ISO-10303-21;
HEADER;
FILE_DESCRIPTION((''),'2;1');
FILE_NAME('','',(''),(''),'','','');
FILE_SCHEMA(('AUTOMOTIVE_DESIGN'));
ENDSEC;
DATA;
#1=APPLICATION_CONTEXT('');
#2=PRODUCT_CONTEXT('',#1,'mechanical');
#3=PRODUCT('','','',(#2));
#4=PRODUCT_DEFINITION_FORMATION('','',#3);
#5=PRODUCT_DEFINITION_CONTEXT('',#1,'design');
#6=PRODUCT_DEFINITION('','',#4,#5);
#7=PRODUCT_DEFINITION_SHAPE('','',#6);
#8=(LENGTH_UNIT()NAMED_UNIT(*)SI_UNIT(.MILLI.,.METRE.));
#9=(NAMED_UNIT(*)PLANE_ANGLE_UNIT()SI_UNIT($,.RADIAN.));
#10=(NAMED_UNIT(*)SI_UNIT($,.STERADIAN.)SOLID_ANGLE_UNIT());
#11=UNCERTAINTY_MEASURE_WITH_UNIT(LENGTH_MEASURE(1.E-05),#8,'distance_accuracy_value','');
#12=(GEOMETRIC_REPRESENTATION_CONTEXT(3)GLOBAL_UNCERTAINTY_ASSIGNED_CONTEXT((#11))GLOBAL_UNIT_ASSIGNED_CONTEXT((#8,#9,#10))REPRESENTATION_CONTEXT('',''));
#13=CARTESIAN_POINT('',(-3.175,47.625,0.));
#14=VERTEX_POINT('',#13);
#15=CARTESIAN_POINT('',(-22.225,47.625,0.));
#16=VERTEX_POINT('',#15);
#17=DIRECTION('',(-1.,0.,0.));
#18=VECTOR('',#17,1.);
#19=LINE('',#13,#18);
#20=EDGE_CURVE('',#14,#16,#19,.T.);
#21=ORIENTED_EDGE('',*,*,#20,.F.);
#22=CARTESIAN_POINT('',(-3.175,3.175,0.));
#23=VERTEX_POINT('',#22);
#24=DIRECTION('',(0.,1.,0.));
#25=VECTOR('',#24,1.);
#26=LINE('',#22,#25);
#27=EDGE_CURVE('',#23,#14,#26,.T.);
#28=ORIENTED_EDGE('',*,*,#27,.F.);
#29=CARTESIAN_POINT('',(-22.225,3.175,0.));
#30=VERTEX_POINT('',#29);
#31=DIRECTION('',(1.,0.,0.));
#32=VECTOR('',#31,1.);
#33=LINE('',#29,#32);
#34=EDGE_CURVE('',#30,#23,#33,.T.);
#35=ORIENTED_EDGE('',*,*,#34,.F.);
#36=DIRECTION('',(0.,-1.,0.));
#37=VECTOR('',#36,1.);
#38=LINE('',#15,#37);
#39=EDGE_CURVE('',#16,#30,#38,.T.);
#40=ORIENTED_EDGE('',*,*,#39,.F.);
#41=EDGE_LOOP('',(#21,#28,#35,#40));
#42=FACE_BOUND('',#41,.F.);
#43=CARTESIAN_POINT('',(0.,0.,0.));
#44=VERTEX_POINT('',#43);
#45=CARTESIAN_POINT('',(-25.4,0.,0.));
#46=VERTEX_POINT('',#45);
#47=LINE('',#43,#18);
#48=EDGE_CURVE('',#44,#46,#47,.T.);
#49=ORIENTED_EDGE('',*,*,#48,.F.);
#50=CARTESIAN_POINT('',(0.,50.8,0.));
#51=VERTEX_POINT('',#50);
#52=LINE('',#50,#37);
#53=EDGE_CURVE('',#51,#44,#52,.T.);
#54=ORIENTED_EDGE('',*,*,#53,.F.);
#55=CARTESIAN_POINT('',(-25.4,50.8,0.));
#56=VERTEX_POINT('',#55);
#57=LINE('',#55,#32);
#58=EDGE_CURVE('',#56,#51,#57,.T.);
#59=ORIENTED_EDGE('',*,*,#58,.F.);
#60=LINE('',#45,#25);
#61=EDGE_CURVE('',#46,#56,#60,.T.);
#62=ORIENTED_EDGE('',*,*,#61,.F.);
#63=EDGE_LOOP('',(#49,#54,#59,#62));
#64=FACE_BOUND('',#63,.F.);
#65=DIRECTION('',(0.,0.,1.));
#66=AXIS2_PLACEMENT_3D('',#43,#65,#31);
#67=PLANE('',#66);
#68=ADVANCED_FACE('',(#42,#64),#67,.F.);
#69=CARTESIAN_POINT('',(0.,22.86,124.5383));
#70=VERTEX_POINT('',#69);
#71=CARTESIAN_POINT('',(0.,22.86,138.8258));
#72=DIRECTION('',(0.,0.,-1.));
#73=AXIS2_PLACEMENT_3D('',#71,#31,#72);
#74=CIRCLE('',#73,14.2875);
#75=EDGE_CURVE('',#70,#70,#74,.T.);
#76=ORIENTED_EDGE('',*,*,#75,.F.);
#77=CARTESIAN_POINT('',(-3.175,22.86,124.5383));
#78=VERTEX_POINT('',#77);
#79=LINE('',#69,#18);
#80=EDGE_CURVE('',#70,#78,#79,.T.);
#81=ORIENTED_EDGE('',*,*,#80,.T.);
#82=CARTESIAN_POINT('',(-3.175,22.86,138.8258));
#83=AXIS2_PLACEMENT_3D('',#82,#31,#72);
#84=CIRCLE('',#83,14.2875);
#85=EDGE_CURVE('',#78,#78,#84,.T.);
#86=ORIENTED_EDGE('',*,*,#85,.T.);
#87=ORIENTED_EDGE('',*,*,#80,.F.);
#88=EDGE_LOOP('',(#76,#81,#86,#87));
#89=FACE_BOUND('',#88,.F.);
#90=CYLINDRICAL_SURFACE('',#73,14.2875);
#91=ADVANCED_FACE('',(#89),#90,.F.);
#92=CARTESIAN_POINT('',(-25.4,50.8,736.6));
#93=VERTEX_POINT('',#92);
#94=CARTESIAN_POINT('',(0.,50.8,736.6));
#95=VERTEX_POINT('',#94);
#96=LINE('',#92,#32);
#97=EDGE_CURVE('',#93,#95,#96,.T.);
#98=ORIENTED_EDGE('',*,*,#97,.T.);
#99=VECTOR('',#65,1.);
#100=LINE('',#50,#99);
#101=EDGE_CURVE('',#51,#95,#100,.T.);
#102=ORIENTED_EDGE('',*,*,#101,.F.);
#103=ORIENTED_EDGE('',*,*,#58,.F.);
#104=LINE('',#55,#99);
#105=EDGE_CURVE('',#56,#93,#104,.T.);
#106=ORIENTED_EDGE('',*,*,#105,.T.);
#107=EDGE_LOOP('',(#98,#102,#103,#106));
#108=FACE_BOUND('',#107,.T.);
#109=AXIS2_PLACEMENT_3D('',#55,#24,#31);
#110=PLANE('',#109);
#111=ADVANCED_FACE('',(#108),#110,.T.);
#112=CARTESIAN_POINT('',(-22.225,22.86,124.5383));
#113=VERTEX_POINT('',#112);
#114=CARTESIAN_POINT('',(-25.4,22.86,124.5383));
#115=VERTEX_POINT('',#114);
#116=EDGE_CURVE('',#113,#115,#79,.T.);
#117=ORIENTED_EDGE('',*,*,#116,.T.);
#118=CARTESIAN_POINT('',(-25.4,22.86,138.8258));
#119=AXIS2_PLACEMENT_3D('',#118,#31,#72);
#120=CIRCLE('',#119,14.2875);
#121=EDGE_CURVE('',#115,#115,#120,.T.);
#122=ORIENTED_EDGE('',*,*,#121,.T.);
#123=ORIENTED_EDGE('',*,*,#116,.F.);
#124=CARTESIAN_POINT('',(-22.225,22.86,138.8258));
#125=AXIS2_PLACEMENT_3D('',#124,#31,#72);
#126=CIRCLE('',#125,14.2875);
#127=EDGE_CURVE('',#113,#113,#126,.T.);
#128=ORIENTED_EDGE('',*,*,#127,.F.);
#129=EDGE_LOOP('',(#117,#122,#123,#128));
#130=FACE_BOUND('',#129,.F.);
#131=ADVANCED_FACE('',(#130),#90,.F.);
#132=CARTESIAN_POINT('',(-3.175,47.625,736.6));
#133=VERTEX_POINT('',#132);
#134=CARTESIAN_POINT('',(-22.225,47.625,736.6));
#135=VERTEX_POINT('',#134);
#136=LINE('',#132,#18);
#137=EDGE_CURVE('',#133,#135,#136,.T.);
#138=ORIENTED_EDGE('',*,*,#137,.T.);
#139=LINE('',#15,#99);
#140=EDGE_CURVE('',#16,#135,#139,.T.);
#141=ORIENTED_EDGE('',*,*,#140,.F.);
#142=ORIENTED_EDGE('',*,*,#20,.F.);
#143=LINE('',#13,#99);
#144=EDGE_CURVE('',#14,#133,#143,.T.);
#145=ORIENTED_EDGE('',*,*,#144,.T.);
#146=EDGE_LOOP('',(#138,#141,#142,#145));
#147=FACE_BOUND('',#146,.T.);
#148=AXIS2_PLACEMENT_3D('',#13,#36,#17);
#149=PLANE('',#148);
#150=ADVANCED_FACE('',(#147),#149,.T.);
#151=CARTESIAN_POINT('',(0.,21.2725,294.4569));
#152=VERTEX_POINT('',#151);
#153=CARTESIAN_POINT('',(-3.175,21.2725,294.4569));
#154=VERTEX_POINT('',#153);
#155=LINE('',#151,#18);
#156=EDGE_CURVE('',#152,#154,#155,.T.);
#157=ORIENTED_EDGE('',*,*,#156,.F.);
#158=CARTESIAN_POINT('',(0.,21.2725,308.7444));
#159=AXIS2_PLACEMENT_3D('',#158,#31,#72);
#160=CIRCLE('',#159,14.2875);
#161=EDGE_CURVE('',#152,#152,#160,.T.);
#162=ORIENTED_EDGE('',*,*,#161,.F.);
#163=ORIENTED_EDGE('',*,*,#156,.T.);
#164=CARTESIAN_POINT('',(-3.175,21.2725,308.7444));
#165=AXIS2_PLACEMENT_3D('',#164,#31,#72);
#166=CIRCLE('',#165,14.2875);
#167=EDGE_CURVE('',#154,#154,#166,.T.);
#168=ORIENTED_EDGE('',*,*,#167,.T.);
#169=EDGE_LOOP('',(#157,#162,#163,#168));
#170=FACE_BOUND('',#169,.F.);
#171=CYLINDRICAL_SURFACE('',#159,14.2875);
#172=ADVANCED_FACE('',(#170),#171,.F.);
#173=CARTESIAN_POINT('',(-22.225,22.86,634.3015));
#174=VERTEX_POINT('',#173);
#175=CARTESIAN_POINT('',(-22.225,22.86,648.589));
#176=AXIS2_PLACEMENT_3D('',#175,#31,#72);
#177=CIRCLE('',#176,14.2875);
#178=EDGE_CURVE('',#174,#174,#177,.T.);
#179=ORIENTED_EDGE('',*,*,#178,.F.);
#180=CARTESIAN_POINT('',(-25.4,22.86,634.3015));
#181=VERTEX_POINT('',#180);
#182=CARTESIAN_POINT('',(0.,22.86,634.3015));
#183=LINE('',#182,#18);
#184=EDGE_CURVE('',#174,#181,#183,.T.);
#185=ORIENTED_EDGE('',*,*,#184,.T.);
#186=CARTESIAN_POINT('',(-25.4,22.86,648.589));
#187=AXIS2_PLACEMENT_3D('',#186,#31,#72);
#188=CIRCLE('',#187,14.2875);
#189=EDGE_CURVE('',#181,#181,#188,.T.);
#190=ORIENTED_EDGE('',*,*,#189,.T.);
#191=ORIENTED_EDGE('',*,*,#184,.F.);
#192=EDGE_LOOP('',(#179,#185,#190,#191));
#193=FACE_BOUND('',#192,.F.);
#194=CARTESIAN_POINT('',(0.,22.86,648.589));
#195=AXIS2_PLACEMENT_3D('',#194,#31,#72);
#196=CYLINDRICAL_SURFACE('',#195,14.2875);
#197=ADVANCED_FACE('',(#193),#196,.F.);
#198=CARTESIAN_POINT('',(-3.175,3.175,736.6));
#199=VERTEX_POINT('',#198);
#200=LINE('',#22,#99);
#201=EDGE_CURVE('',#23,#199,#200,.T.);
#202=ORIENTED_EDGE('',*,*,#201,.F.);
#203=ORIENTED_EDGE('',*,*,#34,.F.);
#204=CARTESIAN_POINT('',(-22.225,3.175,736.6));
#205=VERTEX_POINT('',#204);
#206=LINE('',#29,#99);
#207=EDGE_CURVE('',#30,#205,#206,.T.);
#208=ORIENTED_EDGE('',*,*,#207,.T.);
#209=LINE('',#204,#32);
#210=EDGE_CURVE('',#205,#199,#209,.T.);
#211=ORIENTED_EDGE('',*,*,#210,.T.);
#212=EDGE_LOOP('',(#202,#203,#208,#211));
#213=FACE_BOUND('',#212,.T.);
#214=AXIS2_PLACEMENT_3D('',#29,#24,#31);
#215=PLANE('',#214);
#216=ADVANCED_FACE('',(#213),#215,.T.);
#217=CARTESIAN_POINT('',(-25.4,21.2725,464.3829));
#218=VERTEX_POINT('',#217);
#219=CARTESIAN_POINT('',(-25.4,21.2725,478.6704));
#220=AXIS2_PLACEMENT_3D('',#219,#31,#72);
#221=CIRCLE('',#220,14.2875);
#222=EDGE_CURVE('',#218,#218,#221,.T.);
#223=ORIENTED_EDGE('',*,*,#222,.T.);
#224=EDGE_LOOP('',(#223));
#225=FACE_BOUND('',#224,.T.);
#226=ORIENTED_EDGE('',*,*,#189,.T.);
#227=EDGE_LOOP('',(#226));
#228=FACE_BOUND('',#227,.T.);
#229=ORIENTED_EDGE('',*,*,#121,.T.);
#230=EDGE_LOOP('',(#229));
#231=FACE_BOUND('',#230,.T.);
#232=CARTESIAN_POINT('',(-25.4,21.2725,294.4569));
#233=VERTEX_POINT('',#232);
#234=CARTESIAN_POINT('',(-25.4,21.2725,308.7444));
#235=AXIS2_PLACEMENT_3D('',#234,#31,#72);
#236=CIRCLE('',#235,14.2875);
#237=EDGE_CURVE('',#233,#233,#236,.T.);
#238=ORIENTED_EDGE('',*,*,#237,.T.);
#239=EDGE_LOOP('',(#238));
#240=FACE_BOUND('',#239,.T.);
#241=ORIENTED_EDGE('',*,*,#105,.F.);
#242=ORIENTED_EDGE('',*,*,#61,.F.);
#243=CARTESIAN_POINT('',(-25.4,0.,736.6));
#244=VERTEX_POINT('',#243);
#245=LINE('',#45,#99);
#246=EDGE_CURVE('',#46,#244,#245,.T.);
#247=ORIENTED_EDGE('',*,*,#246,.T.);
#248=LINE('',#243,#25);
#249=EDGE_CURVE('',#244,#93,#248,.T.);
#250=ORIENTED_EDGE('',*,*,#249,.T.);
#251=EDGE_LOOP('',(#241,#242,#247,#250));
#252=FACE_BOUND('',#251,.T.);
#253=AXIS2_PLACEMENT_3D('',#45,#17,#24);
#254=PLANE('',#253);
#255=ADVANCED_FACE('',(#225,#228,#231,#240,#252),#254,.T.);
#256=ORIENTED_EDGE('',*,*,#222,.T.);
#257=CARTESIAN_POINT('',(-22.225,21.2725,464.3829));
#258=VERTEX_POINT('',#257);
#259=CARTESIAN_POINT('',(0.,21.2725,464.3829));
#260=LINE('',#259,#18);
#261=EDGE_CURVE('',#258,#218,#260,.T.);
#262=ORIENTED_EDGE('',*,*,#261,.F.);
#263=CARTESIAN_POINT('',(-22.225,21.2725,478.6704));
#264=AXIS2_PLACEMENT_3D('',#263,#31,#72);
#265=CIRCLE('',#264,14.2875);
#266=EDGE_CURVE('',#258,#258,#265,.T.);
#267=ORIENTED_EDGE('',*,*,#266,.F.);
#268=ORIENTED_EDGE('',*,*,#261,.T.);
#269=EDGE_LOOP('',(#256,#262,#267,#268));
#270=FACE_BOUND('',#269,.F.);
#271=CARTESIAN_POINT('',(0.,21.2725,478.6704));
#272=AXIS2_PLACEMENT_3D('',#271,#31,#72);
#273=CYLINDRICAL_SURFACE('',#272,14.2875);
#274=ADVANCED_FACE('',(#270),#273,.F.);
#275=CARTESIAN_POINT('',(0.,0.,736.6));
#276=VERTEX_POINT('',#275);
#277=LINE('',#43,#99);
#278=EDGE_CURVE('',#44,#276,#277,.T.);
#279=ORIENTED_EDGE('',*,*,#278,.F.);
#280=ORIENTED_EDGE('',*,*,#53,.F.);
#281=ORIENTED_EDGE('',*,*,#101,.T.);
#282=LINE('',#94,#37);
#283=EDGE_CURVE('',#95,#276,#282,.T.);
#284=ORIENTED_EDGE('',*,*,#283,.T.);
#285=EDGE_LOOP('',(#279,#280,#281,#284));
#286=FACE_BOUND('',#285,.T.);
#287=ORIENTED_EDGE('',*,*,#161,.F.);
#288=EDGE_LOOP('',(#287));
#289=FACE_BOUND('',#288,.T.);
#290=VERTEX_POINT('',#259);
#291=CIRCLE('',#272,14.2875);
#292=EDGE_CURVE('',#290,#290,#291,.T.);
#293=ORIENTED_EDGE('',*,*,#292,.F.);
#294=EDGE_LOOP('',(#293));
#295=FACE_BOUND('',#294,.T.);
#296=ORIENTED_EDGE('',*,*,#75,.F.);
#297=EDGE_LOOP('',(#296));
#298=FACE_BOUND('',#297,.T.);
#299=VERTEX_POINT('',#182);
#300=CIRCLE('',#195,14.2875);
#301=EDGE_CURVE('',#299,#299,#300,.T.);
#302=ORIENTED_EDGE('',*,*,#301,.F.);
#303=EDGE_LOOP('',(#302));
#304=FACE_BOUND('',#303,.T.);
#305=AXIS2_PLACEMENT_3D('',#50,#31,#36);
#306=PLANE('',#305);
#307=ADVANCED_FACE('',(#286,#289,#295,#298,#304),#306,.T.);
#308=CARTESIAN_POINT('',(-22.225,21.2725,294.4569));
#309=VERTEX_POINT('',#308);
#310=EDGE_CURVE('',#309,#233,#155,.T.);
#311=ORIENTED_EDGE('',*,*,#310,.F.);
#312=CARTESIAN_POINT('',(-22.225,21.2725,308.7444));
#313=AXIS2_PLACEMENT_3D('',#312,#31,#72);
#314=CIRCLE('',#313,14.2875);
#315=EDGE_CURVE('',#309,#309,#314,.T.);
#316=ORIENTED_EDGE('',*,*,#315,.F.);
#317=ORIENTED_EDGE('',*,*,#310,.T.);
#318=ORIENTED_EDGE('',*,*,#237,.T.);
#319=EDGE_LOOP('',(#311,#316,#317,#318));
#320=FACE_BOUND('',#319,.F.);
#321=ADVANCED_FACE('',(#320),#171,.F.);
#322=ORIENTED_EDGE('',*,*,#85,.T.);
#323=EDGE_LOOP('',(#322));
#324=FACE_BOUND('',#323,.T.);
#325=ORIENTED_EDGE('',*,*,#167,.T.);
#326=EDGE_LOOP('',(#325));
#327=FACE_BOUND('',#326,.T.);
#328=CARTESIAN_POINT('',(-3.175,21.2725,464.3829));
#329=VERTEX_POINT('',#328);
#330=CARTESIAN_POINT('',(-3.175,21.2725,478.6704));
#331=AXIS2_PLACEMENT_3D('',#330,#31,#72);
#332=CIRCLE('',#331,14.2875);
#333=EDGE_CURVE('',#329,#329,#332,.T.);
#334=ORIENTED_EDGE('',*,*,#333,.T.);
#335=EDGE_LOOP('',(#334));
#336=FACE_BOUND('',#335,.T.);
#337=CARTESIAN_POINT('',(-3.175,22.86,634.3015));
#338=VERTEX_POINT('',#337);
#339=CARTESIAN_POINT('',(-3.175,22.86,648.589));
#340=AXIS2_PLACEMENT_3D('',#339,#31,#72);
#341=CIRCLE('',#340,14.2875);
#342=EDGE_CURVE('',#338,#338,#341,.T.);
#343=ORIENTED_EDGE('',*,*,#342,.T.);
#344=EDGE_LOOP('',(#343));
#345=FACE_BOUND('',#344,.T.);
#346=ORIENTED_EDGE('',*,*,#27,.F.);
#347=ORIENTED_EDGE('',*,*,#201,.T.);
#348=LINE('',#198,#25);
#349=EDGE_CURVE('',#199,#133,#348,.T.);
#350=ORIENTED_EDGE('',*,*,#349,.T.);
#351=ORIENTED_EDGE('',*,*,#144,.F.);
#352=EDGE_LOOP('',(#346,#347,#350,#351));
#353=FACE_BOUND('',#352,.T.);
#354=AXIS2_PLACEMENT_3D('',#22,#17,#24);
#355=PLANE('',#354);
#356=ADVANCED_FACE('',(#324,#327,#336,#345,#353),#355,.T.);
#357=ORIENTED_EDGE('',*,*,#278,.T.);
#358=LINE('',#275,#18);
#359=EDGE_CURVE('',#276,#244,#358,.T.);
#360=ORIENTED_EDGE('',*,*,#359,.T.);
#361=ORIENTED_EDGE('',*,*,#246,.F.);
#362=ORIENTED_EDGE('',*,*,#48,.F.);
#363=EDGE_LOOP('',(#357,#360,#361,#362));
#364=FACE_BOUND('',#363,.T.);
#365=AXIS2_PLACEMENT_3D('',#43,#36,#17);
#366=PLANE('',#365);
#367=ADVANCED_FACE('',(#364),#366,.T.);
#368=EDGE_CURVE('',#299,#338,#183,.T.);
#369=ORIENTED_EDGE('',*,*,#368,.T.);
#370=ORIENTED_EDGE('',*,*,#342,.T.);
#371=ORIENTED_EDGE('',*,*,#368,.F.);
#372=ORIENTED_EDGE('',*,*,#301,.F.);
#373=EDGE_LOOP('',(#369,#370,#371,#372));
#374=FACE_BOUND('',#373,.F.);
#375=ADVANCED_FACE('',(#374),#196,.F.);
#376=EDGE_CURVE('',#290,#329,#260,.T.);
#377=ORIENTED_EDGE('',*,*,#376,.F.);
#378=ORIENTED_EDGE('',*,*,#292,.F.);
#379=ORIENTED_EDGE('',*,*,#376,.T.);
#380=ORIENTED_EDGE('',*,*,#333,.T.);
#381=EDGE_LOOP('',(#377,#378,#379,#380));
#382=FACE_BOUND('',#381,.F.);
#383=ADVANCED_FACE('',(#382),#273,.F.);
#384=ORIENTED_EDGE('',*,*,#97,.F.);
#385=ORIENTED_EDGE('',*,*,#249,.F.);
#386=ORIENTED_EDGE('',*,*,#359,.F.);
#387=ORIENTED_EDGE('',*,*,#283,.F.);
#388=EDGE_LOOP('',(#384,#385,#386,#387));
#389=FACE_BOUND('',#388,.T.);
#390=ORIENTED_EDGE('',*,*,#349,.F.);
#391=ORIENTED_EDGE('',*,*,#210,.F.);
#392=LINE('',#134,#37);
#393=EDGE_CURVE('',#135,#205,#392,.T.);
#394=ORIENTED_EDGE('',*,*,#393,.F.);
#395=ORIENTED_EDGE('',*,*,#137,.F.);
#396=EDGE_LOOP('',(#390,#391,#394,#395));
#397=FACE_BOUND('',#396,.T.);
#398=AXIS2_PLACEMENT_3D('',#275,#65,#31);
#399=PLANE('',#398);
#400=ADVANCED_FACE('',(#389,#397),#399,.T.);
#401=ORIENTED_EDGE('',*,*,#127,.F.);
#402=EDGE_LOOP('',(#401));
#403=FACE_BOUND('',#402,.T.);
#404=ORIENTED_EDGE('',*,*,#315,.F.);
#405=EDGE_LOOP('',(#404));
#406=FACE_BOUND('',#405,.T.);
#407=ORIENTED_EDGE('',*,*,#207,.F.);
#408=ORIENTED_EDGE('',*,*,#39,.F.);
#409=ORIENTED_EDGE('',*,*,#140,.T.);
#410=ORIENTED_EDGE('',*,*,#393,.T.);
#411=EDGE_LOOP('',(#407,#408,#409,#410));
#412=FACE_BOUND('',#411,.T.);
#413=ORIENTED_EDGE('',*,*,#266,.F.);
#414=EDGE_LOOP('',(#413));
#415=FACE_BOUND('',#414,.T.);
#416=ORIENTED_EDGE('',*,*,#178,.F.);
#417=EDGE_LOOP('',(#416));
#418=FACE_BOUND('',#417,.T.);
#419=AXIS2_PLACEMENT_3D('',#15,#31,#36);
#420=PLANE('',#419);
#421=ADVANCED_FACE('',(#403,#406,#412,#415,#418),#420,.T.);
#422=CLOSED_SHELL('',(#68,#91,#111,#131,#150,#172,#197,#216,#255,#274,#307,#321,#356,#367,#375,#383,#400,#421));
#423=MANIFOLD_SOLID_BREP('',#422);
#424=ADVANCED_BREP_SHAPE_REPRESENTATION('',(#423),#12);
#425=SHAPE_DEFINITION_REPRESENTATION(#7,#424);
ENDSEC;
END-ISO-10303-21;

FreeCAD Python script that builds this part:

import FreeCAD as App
import Part
import Sketcher
from FreeCAD import Vector
Q = App.Units.Quantity


def add_polygon(sketch, points):
    """Adds a closed chain of lines whose ends are joined by coincident constraints."""
    first, n = sketch.GeometryCount, len(points)
    for a, b in zip(points, points[1:] + points[:1]):
        sketch.addGeometry(Part.LineSegment(App.Vector(*a, 0), App.Vector(*b, 0)), False)
    for i in range(n):
        sketch.addConstraint(Sketcher.Constraint("Coincident", first + i, 2, first + (i + 1) % n, 1))

doc = App.newDocument("Part")
body = doc.addObject("PartDesign::Body", "Body")

sketch1 = doc.addObject("Sketcher::SketchObject", "Sketch")
body.addObject(sketch1)
sketch1.AttachmentSupport = (doc.XY_Plane, [""])
sketch1.MapMode = "FlatFace"
add_polygon(sketch1, [(-25, 0), (0, 0), (0, 51), (-25, 51)])
add_polygon(sketch1, [(-3, 3), (-22, 3), (-22, 48), (-3, 48)])
sketch1.addConstraint(Sketcher.Constraint("Horizontal", 0))
sketch1.addConstraint(Sketcher.Constraint("Vertical", 1))
sketch1.addConstraint(Sketcher.Constraint("Horizontal", 2))
sketch1.addConstraint(Sketcher.Constraint("Vertical", 3))
sketch1.addConstraint(Sketcher.Constraint("Horizontal", 4))
sketch1.addConstraint(Sketcher.Constraint("Vertical", 5))
sketch1.addConstraint(Sketcher.Constraint("Horizontal", 6))
sketch1.addConstraint(Sketcher.Constraint("Vertical", 7))
sketch1.addConstraint(Sketcher.Constraint("Coincident", 0, 2, -1, 1))
sketch1.addConstraint(Sketcher.Constraint("DistanceX", 0, 1, 0, 2, Q("1 in")))
sketch1.addConstraint(Sketcher.Constraint("DistanceY", 1, 1, 1, 2, Q("2 in")))
sketch1.addConstraint(Sketcher.Constraint("DistanceY", -1, 1, 4, 2, Q("0.125 in")))
sketch1.addConstraint(Sketcher.Constraint("DistanceX", 6, 2, -1, 1, Q("0.125 in")))
sketch1.addConstraint(Sketcher.Constraint("DistanceX", 3, 2, 4, 2, Q("0.125 in")))
sketch1.addConstraint(Sketcher.Constraint("DistanceY", 5, 2, 2, 2, Q("0.125 in")))
pad1 = doc.addObject("PartDesign::Pad", "Pad")
body.addObject(pad1)
pad1.Profile = sketch1
pad1.Length = Q("29 in")

sketch2 = doc.addObject("Sketcher::SketchObject", "Sketch001")
body.addObject(sketch2)
sketch2.AttachmentSupport = (doc.YZ_Plane, [""])
sketch2.MapMode = "FlatFace"
sketch2.addGeometry(Part.Circle(Vector(23, 649, 0), Vector(0, 0, 1), 14), False)
sketch2.addGeometry(Part.Circle(Vector(21, 479, 0), Vector(0, 0, 1), 14), False)
sketch2.addGeometry(Part.Circle(Vector(21, 309, 0), Vector(0, 0, 1), 14), False)
sketch2.addGeometry(Part.Circle(Vector(23, 139, 0), Vector(0, 0, 1), 14), False)
sketch2.addConstraint(Sketcher.Constraint("Equal", 0, 1))
sketch2.addConstraint(Sketcher.Constraint("Equal", 1, 2))
sketch2.addConstraint(Sketcher.Constraint("Equal", 2, 3))
sketch2.addConstraint(Sketcher.Constraint("Vertical", 1, 3, 2, 3))
sketch2.addConstraint(Sketcher.Constraint("Vertical", 0, 3, 3, 3))
sketch2.addConstraint(Sketcher.Constraint("Diameter", 0, Q("1.125 in")))
sketch2.addConstraint(Sketcher.Constraint("DistanceX", -1, 1, 0, 3, Q("0.9 in")))
sketch2.addConstraint(Sketcher.Constraint("DistanceY", 2, 3, 1, 3, Q("6.69 in")))
sketch2.addConstraint(Sketcher.Constraint("DistanceX", -1, 1, 1, 3, Q("0.8375 in")))
sketch2.addConstraint(Sketcher.Constraint("DistanceY", -1, 1, 3, 3, Q("138.8258 mm")))
sketch2.addConstraint(Sketcher.Constraint("DistanceY", -1, 1, 0, 3, Q("25.535 in")))
sketch2.addConstraint(Sketcher.Constraint("DistanceY", -1, 1, 1, 3, Q("18.8453 in")))
pocket1 = doc.addObject("PartDesign::Pocket", "Pocket")
body.addObject(pocket1)
pocket1.Profile = sketch2
pocket1.Length = Q("1 in")

doc.recompute()
